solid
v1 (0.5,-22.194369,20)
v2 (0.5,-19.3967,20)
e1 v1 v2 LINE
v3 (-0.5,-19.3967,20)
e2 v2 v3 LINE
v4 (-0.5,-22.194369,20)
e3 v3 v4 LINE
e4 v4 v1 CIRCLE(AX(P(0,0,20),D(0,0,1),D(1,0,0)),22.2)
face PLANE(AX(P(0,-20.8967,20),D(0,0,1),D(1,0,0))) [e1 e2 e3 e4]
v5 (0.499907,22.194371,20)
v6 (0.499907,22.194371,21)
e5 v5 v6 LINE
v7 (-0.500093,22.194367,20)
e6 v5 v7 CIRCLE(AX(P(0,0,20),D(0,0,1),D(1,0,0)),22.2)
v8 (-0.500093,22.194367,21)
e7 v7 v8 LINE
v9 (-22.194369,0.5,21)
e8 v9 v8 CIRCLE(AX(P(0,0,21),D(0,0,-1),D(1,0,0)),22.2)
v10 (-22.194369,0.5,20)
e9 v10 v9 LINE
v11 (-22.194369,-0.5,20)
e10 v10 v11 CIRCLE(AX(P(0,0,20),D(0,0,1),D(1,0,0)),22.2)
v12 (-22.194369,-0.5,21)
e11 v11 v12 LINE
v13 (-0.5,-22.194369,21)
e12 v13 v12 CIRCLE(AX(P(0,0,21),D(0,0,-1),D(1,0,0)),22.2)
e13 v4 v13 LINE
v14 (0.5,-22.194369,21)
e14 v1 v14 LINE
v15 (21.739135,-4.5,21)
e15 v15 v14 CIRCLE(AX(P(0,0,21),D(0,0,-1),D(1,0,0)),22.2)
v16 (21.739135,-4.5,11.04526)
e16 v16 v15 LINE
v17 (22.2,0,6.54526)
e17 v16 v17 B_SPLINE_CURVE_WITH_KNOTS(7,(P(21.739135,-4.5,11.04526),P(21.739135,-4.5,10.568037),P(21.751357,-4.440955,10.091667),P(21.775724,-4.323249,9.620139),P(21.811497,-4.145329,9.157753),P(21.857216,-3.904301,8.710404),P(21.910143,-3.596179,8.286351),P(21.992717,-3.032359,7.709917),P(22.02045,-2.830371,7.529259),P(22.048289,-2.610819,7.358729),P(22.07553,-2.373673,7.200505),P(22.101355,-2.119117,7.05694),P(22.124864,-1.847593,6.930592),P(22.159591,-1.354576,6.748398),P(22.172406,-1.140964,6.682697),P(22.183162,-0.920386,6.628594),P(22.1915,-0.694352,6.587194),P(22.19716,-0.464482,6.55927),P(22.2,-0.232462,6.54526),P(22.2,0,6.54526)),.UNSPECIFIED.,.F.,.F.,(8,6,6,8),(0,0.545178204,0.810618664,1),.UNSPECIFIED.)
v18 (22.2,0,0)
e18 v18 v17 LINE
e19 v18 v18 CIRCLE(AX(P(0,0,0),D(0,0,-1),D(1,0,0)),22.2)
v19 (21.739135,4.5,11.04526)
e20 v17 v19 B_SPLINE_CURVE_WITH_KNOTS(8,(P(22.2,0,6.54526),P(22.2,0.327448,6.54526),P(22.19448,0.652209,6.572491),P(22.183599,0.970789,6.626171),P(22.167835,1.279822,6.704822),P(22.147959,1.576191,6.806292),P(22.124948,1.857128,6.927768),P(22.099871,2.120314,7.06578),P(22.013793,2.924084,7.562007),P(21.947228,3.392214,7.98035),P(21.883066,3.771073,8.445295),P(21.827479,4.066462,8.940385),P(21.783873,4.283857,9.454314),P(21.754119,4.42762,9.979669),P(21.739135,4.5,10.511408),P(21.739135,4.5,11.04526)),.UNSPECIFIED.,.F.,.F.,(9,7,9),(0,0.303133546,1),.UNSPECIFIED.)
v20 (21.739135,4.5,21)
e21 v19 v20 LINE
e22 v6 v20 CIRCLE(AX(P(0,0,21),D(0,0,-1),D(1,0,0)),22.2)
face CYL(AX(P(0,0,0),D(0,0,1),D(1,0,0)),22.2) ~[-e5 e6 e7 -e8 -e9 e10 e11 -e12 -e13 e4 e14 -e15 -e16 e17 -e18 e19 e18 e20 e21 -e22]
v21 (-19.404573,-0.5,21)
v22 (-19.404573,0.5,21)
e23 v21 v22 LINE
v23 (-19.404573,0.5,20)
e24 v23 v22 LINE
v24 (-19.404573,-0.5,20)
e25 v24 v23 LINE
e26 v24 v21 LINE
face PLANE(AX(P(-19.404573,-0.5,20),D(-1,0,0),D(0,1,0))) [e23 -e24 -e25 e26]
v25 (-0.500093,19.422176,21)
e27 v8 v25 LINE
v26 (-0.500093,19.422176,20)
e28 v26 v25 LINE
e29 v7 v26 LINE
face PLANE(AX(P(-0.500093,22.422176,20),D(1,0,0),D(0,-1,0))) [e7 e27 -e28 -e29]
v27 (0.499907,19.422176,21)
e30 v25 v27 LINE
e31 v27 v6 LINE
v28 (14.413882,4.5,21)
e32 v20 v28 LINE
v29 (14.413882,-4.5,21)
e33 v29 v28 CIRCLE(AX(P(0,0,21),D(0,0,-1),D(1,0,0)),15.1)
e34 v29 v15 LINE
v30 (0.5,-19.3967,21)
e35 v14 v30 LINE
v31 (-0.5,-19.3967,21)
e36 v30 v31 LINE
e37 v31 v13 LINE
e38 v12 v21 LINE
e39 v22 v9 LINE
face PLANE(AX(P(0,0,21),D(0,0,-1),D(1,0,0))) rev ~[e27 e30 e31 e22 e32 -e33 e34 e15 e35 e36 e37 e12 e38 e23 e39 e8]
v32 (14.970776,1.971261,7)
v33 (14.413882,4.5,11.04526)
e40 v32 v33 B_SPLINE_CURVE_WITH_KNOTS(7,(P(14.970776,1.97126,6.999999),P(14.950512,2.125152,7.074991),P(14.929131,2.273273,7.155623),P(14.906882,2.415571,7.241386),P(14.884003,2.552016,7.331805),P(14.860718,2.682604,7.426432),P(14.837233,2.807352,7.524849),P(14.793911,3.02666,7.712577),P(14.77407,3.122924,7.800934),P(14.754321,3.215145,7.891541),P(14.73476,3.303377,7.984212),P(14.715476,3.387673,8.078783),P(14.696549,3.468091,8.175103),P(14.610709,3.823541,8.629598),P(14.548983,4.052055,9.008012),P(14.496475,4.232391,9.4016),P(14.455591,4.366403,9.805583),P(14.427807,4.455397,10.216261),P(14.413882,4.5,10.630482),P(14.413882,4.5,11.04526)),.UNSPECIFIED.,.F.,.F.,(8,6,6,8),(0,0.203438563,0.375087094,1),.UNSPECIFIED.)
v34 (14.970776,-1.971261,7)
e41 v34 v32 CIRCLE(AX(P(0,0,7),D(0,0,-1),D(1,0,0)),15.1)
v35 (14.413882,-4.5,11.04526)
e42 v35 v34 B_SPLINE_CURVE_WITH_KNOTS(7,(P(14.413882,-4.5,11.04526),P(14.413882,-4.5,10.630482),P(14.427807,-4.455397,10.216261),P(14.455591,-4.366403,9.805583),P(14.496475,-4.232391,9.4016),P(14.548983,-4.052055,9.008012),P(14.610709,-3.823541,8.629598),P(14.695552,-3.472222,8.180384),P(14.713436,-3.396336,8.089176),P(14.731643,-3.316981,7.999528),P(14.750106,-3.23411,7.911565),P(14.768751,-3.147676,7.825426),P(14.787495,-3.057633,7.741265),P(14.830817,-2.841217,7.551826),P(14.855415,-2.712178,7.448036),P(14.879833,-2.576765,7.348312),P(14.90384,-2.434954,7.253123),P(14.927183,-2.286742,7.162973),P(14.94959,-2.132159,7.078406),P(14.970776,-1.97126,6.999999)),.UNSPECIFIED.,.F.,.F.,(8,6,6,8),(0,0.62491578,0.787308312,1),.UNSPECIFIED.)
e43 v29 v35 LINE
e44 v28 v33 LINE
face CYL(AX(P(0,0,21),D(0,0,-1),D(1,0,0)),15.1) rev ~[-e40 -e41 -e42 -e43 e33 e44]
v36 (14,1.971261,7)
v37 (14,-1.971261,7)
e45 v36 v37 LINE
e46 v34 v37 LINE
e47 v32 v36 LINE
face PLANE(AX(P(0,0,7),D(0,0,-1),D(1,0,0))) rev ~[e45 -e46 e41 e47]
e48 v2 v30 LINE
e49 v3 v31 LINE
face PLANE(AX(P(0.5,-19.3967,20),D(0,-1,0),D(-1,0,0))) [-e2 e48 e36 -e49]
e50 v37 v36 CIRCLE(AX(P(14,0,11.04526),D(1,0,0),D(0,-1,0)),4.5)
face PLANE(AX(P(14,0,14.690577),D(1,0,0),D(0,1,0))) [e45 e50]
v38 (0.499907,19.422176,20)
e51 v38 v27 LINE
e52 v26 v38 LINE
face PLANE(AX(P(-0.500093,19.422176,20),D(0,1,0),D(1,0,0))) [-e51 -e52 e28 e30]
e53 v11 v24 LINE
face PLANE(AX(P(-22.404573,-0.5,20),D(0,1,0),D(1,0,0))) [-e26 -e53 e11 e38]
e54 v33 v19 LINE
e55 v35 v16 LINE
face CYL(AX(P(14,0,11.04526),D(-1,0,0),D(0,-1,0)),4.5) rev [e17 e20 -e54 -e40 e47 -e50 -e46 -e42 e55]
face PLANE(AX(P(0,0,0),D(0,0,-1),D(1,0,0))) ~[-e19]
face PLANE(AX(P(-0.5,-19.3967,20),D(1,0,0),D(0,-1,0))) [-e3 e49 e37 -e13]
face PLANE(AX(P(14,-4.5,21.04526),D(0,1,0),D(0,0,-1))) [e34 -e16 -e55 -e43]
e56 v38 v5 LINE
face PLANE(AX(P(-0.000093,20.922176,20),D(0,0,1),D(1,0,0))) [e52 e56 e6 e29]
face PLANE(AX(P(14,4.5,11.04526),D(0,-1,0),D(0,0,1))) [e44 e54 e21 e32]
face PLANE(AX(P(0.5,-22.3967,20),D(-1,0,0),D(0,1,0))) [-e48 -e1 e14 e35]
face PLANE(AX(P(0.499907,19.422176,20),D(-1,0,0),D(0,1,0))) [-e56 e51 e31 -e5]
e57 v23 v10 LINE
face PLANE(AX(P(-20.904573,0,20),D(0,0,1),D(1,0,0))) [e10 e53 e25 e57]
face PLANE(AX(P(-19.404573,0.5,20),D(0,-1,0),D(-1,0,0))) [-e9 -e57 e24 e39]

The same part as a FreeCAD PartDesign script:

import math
import FreeCAD as App
import Part
import Sketcher
Q = App.Units.Quantity

doc = App.newDocument("Part")
body = doc.addObject("PartDesign::Body", "Body")

# Sketch on XZ plane
sketch1 = body.newObject("Sketcher::SketchObject", "Sketch")
sketch1.AttachmentSupport = (doc.getObject("XZ_Plane"), [""])
sketch1.MapMode = "FlatFace"
sketch1.addGeometry(Part.LineSegment(App.Vector(0, 7, 0), App.Vector(0, 0, 0)), False)
sketch1.addGeometry(Part.LineSegment(App.Vector(0, 0, 0), App.Vector(22, 0, 0)), False)
sketch1.addGeometry(Part.LineSegment(App.Vector(22, 0, 0), App.Vector(22, 21, 0)), False)
sketch1.addGeometry(Part.LineSegment(App.Vector(22, 21, 0), App.Vector(15, 21, 0)), False)
sketch1.addGeometry(Part.LineSegment(App.Vector(15, 21, 0), App.Vector(15, 7, 0)), False)
sketch1.addGeometry(Part.LineSegment(App.Vector(15, 7, 0), App.Vector(0, 7, 0)), False)
sketch1.addConstraint(Sketcher.Constraint("Coincident", 0, 2, 1, 1))
sketch1.addConstraint(Sketcher.Constraint("Coincident", 1, 2, 2, 1))
sketch1.addConstraint(Sketcher.Constraint("Coincident", 2, 2, 3, 1))
sketch1.addConstraint(Sketcher.Constraint("Coincident", 3, 2, 4, 1))
sketch1.addConstraint(Sketcher.Constraint("Coincident", 4, 2, 5, 1))
sketch1.addConstraint(Sketcher.Constraint("Coincident", 5, 2, 0, 1))
sketch1.addConstraint(Sketcher.Constraint("Vertical", 0))
sketch1.addConstraint(Sketcher.Constraint("Horizontal", 1))
sketch1.addConstraint(Sketcher.Constraint("Vertical", 2))
sketch1.addConstraint(Sketcher.Constraint("Horizontal", 3))
sketch1.addConstraint(Sketcher.Constraint("Vertical", 4))
sketch1.addConstraint(Sketcher.Constraint("Horizontal", 5))
sketch1.addConstraint(Sketcher.Constraint("Coincident", 0, 2, -1, 1))
sketch1.addConstraint(Sketcher.Constraint("DistanceY", 0, 2, 0, 1, Q("7 mm")))
sketch1.addConstraint(Sketcher.Constraint("DistanceY", 2, 1, 2, 2, Q("21 mm")))
sketch1.addConstraint(Sketcher.Constraint("DistanceX", 1, 1, 1, 2, Q("22.2 mm")))
sketch1.addConstraint(Sketcher.Constraint("DistanceX", 3, 2, 3, 1, Q("7.1 mm")))
revolution = body.newObject("PartDesign::Revolution", "Revolution")
revolution.Profile = sketch1
revolution.ReferenceAxis = (sketch1, ["V_Axis"])
revolution.Angle = 360

# Sketch on YZ plane
sketch2 = body.newObject("Sketcher::SketchObject", "Sketch001")
sketch2.AttachmentSupport = (doc.getObject("YZ_Plane"), [""])
sketch2.MapMode = "FlatFace"
sketch2.AttachmentOffset = App.Placement(App.Vector(0, 0, 14), App.Rotation())
sketch2.addGeometry(Part.LineSegment(App.Vector(4.5, 21, 0), App.Vector(-4.5, 21, 0)), False)
sketch2.addGeometry(Part.LineSegment(App.Vector(-4.5, 21, 0), App.Vector(-4.5, 11, 0)), False)
sketch2.addGeometry(Part.ArcOfCircle(Part.Circle(App.Vector(0, 11, 0), App.Vector(0, 0, 1), 4.5), math.radians(180), math.radians(360)), False)
sketch2.addGeometry(Part.LineSegment(App.Vector(4.5, 11, 0), App.Vector(4.5, 21, 0)), False)
sketch2.addConstraint(Sketcher.Constraint("Coincident", 0, 2, 1, 1))
sketch2.addConstraint(Sketcher.Constraint("Tangent", 1, 2, 2, 1))
sketch2.addConstraint(Sketcher.Constraint("Tangent", 2, 2, 3, 1))
sketch2.addConstraint(Sketcher.Constraint("Coincident", 3, 2, 0, 1))
sketch2.addConstraint(Sketcher.Constraint("Horizontal", 0))
sketch2.addConstraint(Sketcher.Constraint("Vertical", 1))
sketch2.addConstraint(Sketcher.Constraint("Vertical", 3))
sketch2.addConstraint(Sketcher.Constraint("PointOnObject", 2, 3, -2))
sketch2.addConstraint(Sketcher.Constraint("Radius", 2, Q("4.5 mm")))
sketch2.addConstraint(Sketcher.Constraint("DistanceY", 1, 2, 1, 1, Q("10 mm")))
sketch2.addConstraint(Sketcher.Constraint("DistanceY", -1, 1, 2, 3, Q("11.04526 mm")))
pocket1 = body.newObject("PartDesign::Pocket", "Pocket")
pocket1.Profile = sketch2
pocket1.Length = 16
pocket1.Reversed = True

# Sketch on XY plane
sketch3 = body.newObject("Sketcher::SketchObject", "Sketch002")
sketch3.AttachmentSupport = (doc.getObject("XY_Plane"), [""])
sketch3.MapMode = "FlatFace"
sketch3.AttachmentOffset = App.Placement(App.Vector(0, 0, 20), App.Rotation())
sketch3.addGeometry(Part.LineSegment(App.Vector(0.5, -19.4, 0), App.Vector(-0.5, -19.4, 0)), False)
sketch3.addGeometry(Part.LineSegment(App.Vector(-0.5, -19.4, 0), App.Vector(-0.5, -22.4, 0)), False)
sketch3.addGeometry(Part.LineSegment(App.Vector(-0.5, -22.4, 0), App.Vector(0.5, -22.4, 0)), False)
sketch3.addGeometry(Part.LineSegment(App.Vector(0.5, -22.4, 0), App.Vector(0.5, -19.4, 0)), False)
sketch3.addGeometry(Part.LineSegment(App.Vector(0.5, 22.4, 0), App.Vector(-0.5, 22.4, 0)), False)
sketch3.addGeometry(Part.LineSegment(App.Vector(-0.5, 22.4, 0), App.Vector(-0.5, 19.4, 0)), False)
sketch3.addGeometry(Part.LineSegment(App.Vector(-0.5, 19.4, 0), App.Vector(0.5, 19.4, 0)), False)
sketch3.addGeometry(Part.LineSegment(App.Vector(0.5, 19.4, 0), App.Vector(0.5, 22.4, 0)), False)
sketch3.addGeometry(Part.LineSegment(App.Vector(22.4, -0.5, 0), App.Vector(22.4, 0.5, 0)), False)
sketch3.addGeometry(Part.LineSegment(App.Vector(22.4, 0.5, 0), App.Vector(19.4, 0.5, 0)), False)
sketch3.addGeometry(Part.LineSegment(App.Vector(19.4, 0.5, 0), App.Vector(19.4, -0.5, 0)), False)
sketch3.addGeometry(Part.LineSegment(App.Vector(19.4, -0.5, 0), App.Vector(22.4, -0.5, 0)), False)
sketch3.addGeometry(Part.LineSegment(App.Vector(-19.4, -0.5, 0), App.Vector(-19.4, 0.5, 0)), False)
sketch3.addGeometry(Part.LineSegment(App.Vector(-19.4, 0.5, 0), App.Vector(-22.4, 0.5, 0)), False)
sketch3.addGeometry(Part.LineSegment(App.Vector(-22.4, 0.5, 0), App.Vector(-22.4, -0.5, 0)), False)
sketch3.addGeometry(Part.LineSegment(App.Vector(-22.4, -0.5, 0), App.Vector(-19.4, -0.5, 0)), False)
sketch3.addConstraint(Sketcher.Constraint("Coincident", 0, 2, 1, 1))
sketch3.addConstraint(Sketcher.Constraint("Coincident", 1, 2, 2, 1))
sketch3.addConstraint(Sketcher.Constraint("Coincident", 2, 2, 3, 1))
sketch3.addConstraint(Sketcher.Constraint("Coincident", 3, 2, 0, 1))
sketch3.addConstraint(Sketcher.Constraint("Coincident", 4, 2, 5, 1))
sketch3.addConstraint(Sketcher.Constraint("Coincident", 5, 2, 6, 1))
sketch3.addConstraint(Sketcher.Constraint("Coincident", 6, 2, 7, 1))
sketch3.addConstraint(Sketcher.Constraint("Coincident", 7, 2, 4, 1))
sketch3.addConstraint(Sketcher.Constraint("Coincident", 8, 2, 9, 1))
sketch3.addConstraint(Sketcher.Constraint("Coincident", 9, 2, 10, 1))
sketch3.addConstraint(Sketcher.Constraint("Coincident", 10, 2, 11, 1))
sketch3.addConstraint(Sketcher.Constraint("Coincident", 11, 2, 8, 1))
sketch3.addConstraint(Sketcher.Constraint("Coincident", 12, 2, 13, 1))
sketch3.addConstraint(Sketcher.Constraint("Coincident", 13, 2, 14, 1))
sketch3.addConstraint(Sketcher.Constraint("Coincident", 14, 2, 15, 1))
sketch3.addConstraint(Sketcher.Constraint("Coincident", 15, 2, 12, 1))
sketch3.addConstraint(Sketcher.Constraint("Horizontal", 0))
sketch3.addConstraint(Sketcher.Constraint("Vertical", 1))
sketch3.addConstraint(Sketcher.Constraint("Horizontal", 2))
sketch3.addConstraint(Sketcher.Constraint("Vertical", 3))
sketch3.addConstraint(Sketcher.Constraint("Horizontal", 4))
sketch3.addConstraint(Sketcher.Constraint("Vertical", 5))
sketch3.addConstraint(Sketcher.Constraint("Horizontal", 6))
sketch3.addConstraint(Sketcher.Constraint("Vertical", 7))
sketch3.addConstraint(Sketcher.Constraint("Vertical", 8))
sketch3.addConstraint(Sketcher.Constraint("Horizontal", 9))
sketch3.addConstraint(Sketcher.Constraint("Vertical", 10))
sketch3.addConstraint(Sketcher.Constraint("Horizontal", 11))
sketch3.addConstraint(Sketcher.Constraint("Vertical", 12))
sketch3.addConstraint(Sketcher.Constraint("Horizontal", 13))
sketch3.addConstraint(Sketcher.Constraint("Vertical", 14))
sketch3.addConstraint(Sketcher.Constraint("Horizontal", 15))
sketch3.addConstraint(Sketcher.Constraint("Horizontal", 9, 2, 12, 2))
sketch3.addConstraint(Sketcher.Constraint("Horizontal", 11, 2, 14, 2))
sketch3.addConstraint(Sketcher.Constraint("Equal", 2, 4))
sketch3.addConstraint(Sketcher.Constraint("Equal", 11, 13))
sketch3.addConstraint(Sketcher.Constraint("Equal", 15, 1))
sketch3.addConstraint(Sketcher.Constraint("Equal", 3, 5))
sketch3.addConstraint(Sketcher.Constraint("Equal", 6, 8))
sketch3.addConstraint(Sketcher.Constraint("DistanceX", 0, 2, 0, 1, Q("1 mm")))
sketch3.addConstraint(Sketcher.Constraint("DistanceX", 9, 2, 9, 1, Q("3 mm")))
sketch3.addConstraint(Sketcher.Constraint("DistanceX", 0, 2, -1, 1, Q("0.5 mm")))
sketch3.addConstraint(Sketcher.Constraint("DistanceY", -1, 1, 8, 2, Q("0.5 mm")))
sketch3.addConstraint(Sketcher.Constraint("DistanceY", 0, 2, -1, 1, Q("19.3967 mm")))
sketch3.addConstraint(Sketcher.Constraint("DistanceX", -1, 1, 8, 2, Q("22.392929 mm")))
sketch3.addConstraint(Sketcher.Constraint("DistanceX", 6, 2, 8, 2, Q("21.893022 mm")))
sketch3.addConstraint(Sketcher.Constraint("DistanceX", 12, 2, 5, 2, Q("18.90448 mm")))
sketch3.addConstraint(Sketcher.Constraint("DistanceY", -1, 1, 4, 2, Q("22.422176 mm")))
pocket2 = body.newObject("PartDesign::Pocket", "Pocket001")
pocket2.Profile = sketch3
pocket2.Length = 1
pocket2.Reversed = True

doc.recompute()
